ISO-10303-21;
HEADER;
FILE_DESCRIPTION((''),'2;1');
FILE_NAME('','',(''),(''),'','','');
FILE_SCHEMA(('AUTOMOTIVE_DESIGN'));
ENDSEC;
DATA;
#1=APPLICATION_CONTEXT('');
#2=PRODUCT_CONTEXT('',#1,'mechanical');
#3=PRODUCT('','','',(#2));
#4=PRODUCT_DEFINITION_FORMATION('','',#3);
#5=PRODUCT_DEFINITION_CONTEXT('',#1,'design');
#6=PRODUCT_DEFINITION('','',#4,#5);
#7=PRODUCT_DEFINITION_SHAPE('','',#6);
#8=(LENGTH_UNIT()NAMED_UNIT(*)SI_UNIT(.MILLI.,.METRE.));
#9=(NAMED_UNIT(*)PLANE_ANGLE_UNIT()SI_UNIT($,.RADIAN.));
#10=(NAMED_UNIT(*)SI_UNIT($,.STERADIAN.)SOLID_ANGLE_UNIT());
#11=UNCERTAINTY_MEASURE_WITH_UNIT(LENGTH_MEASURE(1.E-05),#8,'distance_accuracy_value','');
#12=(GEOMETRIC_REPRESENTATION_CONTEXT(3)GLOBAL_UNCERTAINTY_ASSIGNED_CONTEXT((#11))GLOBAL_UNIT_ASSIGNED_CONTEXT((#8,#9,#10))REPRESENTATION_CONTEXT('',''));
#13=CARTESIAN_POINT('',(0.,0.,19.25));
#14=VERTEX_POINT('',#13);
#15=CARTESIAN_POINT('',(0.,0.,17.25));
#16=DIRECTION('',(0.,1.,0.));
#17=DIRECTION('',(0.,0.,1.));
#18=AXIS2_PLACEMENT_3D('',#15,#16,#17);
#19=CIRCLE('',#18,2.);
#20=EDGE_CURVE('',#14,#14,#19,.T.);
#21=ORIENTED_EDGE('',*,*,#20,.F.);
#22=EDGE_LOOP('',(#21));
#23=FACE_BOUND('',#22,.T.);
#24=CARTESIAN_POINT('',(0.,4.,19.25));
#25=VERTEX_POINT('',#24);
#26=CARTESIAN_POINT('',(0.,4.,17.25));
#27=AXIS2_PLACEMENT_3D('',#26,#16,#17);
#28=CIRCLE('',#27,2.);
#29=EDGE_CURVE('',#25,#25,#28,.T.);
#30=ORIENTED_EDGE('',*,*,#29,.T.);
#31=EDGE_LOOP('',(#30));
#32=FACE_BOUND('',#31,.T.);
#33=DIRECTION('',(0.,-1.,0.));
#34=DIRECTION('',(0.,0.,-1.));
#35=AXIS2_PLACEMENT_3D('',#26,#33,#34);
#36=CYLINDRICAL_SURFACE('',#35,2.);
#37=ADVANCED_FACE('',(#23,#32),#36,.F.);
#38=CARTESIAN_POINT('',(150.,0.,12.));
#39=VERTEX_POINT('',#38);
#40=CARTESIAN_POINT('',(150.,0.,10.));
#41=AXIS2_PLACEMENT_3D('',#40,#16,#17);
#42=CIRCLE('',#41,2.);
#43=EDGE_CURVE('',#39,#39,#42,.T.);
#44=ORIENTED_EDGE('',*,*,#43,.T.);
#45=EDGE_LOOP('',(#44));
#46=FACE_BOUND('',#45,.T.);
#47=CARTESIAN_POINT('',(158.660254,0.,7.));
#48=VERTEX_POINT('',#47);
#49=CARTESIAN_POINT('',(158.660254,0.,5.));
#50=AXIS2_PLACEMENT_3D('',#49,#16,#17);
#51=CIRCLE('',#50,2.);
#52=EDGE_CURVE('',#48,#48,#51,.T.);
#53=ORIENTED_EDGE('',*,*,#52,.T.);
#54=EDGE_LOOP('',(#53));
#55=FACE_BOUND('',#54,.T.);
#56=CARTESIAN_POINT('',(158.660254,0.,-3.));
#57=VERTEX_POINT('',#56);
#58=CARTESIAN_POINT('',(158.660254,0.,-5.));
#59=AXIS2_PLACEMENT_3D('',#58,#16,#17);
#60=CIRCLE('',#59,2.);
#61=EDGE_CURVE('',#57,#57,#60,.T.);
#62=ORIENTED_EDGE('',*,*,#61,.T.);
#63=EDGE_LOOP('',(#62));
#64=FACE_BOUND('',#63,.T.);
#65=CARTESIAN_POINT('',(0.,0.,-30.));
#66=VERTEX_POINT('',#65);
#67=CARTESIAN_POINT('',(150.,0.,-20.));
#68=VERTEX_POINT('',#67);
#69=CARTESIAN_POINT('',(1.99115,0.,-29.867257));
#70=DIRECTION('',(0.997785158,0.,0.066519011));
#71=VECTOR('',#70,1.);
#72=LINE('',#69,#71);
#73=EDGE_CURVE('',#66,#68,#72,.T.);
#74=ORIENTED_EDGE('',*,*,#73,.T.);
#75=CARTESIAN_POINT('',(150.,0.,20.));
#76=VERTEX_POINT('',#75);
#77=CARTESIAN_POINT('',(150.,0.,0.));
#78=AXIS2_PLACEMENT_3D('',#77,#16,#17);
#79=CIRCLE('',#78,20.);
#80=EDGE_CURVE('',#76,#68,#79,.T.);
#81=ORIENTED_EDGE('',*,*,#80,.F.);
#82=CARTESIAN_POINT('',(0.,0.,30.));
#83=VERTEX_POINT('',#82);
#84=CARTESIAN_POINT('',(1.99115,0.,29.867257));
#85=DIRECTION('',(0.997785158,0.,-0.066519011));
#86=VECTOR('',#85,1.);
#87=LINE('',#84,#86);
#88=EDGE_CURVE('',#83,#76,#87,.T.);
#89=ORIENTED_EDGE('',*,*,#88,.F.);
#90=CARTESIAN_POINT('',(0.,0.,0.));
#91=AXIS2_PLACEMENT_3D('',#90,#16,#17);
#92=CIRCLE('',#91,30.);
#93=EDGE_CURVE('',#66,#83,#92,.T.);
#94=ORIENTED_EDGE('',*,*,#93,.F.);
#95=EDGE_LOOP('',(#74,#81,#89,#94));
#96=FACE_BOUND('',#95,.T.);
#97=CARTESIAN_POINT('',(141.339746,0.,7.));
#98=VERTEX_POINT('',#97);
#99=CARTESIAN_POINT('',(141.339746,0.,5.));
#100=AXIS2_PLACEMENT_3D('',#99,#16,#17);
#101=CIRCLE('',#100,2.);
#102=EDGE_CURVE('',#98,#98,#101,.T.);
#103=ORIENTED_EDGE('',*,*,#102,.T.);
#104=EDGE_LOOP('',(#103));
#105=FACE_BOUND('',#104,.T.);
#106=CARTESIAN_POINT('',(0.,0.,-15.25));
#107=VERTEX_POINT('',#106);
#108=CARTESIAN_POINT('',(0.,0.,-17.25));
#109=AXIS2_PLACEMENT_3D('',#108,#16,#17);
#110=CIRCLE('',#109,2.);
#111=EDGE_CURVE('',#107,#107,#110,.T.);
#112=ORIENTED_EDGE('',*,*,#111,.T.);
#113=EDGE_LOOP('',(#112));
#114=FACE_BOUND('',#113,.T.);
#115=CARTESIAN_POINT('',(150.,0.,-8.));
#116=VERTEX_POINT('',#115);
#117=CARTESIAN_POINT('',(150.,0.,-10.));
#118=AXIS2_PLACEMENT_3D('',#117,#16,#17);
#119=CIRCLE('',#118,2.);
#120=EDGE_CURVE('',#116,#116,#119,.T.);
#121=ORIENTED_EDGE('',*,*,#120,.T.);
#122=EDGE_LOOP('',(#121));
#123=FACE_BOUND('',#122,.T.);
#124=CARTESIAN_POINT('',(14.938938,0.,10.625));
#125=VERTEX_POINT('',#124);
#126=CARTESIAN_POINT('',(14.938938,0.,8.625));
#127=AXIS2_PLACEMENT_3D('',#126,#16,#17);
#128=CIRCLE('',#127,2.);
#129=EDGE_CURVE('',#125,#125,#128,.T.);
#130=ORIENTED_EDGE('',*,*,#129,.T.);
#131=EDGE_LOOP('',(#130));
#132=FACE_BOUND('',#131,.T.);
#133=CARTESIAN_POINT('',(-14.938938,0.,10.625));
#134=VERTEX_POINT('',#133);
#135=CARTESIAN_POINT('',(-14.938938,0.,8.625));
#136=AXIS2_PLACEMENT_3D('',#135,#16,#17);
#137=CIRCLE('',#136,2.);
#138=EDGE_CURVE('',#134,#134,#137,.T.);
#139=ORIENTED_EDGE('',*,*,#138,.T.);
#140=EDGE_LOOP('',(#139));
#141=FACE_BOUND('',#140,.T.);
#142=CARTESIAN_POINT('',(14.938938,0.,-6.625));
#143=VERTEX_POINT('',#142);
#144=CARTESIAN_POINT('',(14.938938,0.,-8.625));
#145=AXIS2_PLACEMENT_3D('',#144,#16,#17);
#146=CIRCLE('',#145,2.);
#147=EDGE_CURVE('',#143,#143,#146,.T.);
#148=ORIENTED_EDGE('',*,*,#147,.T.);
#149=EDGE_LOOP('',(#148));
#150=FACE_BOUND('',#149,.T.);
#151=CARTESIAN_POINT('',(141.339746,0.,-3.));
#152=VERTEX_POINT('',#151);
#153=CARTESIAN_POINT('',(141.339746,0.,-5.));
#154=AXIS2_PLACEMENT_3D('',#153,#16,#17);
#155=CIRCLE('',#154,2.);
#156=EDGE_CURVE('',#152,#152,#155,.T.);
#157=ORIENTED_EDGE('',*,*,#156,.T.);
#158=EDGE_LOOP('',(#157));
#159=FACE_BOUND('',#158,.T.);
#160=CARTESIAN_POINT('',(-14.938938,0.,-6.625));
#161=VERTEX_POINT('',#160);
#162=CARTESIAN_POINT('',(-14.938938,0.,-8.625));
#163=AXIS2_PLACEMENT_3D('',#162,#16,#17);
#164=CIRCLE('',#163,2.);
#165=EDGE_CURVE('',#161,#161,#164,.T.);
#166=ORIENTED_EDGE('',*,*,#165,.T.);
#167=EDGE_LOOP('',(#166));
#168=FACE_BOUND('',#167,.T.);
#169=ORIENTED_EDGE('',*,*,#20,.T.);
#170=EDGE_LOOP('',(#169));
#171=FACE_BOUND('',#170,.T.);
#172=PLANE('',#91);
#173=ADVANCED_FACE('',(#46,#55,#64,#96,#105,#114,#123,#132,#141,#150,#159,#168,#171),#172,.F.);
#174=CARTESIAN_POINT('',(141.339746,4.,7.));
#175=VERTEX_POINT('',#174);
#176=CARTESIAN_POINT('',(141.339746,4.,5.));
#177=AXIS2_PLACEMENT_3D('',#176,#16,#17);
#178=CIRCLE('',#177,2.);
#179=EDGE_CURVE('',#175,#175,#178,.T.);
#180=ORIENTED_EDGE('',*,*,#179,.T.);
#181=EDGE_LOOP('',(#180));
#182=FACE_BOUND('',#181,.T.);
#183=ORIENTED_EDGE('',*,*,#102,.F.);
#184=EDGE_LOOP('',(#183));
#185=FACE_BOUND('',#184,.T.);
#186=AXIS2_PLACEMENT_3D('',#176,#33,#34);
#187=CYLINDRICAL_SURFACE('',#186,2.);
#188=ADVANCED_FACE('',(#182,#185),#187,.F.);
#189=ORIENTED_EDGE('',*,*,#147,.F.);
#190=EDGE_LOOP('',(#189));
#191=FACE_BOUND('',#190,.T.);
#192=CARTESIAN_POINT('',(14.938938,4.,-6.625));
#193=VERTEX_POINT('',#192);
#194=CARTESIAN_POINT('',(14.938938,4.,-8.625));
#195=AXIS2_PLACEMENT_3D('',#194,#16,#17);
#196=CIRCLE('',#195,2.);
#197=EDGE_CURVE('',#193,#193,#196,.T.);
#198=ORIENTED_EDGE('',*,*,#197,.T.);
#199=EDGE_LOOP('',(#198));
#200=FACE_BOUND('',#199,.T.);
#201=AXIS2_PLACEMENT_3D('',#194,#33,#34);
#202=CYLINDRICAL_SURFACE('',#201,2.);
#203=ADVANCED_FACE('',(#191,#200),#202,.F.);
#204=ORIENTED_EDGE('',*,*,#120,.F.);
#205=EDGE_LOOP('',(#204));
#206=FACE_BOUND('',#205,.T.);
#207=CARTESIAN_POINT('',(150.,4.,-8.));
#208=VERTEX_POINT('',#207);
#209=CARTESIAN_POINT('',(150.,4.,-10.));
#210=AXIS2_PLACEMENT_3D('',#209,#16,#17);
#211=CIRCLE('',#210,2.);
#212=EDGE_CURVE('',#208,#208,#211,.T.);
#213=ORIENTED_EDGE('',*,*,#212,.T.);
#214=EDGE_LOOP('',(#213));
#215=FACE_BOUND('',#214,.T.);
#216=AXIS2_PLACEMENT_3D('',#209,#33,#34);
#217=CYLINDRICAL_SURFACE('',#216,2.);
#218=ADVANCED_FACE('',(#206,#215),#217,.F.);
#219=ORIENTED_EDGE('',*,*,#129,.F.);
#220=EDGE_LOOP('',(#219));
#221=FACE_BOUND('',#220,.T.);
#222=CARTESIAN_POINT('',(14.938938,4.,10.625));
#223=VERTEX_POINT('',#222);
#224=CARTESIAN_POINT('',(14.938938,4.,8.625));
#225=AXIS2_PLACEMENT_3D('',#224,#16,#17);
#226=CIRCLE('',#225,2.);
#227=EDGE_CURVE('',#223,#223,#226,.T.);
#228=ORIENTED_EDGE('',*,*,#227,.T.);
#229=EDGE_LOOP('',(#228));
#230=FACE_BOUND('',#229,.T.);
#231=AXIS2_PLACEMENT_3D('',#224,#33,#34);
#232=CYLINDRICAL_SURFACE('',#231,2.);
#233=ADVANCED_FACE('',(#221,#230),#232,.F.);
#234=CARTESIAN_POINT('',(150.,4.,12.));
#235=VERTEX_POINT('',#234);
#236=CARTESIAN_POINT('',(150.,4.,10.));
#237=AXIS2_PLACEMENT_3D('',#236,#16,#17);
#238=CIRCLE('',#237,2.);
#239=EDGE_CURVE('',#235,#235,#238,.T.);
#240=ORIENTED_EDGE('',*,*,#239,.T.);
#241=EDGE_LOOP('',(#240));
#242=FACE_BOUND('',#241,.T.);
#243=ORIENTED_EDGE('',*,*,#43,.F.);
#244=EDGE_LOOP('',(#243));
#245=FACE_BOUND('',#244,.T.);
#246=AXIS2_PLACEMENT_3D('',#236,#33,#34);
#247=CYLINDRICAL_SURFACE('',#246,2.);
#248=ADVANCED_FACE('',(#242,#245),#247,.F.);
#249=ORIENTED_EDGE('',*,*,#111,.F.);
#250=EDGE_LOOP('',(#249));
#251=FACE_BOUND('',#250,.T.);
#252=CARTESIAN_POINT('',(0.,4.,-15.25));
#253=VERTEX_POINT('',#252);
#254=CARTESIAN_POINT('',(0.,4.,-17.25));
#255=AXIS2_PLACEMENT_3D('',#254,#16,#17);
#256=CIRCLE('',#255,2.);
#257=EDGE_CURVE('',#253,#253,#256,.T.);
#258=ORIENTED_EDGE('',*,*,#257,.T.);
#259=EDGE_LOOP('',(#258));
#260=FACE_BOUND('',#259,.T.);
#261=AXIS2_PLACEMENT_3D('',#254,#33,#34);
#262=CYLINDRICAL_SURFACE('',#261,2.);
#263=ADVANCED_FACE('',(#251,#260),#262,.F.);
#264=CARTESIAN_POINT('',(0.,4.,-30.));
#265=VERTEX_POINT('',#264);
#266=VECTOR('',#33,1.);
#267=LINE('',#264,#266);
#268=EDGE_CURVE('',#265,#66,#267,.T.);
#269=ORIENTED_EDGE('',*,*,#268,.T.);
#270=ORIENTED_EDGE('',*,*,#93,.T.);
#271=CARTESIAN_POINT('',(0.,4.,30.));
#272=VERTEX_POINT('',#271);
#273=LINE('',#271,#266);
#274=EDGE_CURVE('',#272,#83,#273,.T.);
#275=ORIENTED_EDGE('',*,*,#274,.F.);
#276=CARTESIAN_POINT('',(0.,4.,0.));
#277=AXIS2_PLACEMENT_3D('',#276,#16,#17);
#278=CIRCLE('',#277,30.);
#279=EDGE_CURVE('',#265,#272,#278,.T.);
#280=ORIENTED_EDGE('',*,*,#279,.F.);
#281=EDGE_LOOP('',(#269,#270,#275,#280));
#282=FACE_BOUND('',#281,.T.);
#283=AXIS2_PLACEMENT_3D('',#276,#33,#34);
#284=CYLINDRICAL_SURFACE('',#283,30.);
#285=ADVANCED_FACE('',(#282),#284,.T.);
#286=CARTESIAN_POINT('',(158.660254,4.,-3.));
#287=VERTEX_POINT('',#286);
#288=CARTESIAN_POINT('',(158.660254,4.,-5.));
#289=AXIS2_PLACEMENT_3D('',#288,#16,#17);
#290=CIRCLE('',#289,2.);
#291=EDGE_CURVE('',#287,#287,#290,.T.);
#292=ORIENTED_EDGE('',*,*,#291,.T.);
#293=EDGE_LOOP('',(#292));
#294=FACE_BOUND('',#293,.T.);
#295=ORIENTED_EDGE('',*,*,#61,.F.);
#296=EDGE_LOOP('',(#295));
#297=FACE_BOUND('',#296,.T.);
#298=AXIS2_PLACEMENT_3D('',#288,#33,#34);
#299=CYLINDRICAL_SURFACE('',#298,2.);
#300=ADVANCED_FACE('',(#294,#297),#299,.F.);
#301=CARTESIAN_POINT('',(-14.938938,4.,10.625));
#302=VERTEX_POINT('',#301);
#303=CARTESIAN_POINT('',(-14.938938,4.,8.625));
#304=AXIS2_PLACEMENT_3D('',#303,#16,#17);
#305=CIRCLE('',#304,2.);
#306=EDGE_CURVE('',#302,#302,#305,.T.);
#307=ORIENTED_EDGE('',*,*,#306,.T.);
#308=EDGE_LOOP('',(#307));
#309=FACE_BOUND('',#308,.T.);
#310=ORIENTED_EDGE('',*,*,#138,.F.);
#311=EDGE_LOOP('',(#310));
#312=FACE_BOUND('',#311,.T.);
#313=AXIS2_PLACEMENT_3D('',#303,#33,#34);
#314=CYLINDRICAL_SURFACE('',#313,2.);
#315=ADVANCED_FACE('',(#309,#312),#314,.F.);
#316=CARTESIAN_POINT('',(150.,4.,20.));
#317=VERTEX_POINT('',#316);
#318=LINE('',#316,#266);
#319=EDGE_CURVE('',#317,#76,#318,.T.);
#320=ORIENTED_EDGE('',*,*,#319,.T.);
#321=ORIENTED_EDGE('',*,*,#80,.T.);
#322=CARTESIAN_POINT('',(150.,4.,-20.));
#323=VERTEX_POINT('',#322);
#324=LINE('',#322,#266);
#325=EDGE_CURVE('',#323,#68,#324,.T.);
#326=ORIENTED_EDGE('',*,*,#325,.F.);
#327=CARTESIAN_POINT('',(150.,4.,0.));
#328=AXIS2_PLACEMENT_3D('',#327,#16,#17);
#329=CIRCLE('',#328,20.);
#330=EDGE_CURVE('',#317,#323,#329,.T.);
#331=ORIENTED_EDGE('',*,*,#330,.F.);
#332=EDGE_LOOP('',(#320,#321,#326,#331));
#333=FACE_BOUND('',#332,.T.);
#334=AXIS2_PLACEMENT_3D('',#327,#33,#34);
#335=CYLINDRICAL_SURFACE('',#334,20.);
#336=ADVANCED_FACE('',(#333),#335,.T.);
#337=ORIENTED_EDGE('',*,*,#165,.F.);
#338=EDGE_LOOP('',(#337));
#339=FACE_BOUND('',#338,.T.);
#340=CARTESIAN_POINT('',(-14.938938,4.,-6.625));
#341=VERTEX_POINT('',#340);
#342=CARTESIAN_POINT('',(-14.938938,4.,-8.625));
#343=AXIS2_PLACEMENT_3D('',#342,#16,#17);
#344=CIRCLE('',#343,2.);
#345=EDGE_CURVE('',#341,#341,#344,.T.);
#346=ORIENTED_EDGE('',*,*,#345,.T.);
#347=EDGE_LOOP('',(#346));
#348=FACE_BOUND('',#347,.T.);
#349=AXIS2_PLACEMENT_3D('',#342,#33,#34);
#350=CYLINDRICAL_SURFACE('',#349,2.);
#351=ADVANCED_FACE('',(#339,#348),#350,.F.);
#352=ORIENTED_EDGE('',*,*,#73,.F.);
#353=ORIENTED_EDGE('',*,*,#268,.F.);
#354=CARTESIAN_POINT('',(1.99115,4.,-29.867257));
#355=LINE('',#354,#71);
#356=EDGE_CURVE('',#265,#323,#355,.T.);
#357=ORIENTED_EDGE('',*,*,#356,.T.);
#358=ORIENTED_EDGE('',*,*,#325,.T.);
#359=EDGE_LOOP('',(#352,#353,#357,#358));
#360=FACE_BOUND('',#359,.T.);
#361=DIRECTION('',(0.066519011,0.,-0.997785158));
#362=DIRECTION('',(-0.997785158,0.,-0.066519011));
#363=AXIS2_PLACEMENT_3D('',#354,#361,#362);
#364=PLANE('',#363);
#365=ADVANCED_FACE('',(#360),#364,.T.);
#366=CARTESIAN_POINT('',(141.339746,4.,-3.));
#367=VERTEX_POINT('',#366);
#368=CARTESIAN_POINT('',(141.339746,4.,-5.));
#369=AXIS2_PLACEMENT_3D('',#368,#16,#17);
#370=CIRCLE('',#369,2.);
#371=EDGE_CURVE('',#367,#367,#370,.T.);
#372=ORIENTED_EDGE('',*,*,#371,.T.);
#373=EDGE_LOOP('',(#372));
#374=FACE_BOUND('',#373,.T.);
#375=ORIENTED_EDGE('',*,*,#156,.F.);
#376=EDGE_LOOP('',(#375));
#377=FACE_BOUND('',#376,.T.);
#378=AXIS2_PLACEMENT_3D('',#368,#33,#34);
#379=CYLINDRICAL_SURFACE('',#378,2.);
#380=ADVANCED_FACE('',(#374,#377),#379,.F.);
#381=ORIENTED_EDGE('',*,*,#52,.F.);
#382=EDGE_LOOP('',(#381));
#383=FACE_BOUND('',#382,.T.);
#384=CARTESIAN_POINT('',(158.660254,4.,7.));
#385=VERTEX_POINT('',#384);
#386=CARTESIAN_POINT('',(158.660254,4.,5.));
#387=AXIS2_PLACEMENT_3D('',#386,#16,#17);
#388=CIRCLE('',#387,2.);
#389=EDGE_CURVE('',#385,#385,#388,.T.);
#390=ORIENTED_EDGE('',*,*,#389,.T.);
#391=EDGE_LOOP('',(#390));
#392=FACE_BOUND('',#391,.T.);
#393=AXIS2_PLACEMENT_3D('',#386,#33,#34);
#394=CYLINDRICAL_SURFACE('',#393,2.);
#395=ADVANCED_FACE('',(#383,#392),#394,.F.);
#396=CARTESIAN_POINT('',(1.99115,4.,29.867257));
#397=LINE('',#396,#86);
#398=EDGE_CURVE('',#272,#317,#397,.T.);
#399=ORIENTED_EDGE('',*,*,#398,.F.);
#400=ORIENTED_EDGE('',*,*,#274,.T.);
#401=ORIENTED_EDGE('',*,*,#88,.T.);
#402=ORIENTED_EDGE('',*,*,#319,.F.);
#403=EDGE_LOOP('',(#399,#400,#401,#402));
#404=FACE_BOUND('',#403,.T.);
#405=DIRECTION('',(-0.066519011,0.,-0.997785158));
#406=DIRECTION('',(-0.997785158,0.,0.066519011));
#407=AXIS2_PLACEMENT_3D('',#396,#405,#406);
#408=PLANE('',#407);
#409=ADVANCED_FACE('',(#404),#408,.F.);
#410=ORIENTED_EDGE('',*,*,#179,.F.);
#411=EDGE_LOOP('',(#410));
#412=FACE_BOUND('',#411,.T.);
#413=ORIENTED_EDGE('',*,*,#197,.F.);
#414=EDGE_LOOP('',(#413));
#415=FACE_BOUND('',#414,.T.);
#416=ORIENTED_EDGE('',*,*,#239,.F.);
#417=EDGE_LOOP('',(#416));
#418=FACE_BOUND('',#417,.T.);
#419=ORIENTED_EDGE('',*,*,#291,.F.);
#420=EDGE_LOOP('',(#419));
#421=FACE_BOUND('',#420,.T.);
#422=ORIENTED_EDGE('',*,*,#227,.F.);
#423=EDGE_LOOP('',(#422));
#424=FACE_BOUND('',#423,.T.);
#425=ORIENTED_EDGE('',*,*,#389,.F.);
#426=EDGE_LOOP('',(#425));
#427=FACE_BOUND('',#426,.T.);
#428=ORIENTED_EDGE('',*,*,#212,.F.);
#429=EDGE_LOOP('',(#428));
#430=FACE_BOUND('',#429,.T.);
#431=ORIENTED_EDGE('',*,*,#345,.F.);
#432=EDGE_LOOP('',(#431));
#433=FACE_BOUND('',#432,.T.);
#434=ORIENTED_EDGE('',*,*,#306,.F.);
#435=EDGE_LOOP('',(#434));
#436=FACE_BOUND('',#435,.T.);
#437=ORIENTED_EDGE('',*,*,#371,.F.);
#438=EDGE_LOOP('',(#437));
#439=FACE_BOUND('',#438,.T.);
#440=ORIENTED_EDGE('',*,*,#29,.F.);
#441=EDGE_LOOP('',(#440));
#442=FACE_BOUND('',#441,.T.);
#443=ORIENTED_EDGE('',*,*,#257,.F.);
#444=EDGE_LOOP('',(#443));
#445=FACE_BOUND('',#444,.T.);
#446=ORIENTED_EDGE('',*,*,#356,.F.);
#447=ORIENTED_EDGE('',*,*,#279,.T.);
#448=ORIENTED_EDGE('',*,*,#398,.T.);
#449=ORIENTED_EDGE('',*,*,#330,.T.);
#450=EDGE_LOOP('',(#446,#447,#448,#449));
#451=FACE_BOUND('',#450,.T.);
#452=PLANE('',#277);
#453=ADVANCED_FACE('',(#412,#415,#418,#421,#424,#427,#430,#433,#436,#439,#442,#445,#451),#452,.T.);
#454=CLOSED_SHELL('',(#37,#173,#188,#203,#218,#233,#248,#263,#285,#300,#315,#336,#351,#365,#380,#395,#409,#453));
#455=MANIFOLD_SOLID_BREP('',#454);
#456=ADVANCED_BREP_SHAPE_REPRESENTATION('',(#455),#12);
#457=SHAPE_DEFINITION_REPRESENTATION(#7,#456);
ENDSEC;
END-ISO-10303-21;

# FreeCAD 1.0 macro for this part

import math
import FreeCAD as App
import Part
import Sketcher
from FreeCAD import Vector
Q = App.Units.Quantity

doc = App.newDocument("Part")
body = doc.addObject("PartDesign::Body", "Body")

sketch1 = body.newObject("Sketcher::SketchObject", "Sketch")
sketch1.AttachmentSupport = (doc.getObject("XZ_Plane"), [""])
sketch1.MapMode = "FlatFace"
sketch1.addGeometry(Part.LineSegment(Vector(0, 30, 0), Vector(150, 20, 0)), False)
sketch1.addGeometry(Part.ArcOfCircle(Part.Circle(Vector(150, 0, 0), Vector(0, 0, 1), 20), math.radians(-90), math.radians(90)), False)
sketch1.addGeometry(Part.LineSegment(Vector(150, -20, 0), Vector(0, -30, 0)), False)
sketch1.addGeometry(Part.ArcOfCircle(Part.Circle(Vector(0, 0, 0), Vector(0, 0, 1), 30), math.radians(90), math.radians(270)), False)
sketch1.addGeometry(Part.Circle(Vector(0, 17.2, 0), Vector(0, 0, 1), 2), False)
sketch1.addGeometry(Part.Circle(Vector(-14.9, 8.6, 0), Vector(0, 0, 1), 2), False)
sketch1.addGeometry(Part.Circle(Vector(14.9, 8.6, 0), Vector(0, 0, 1), 2), False)
sketch1.addGeometry(Part.Circle(Vector(150, 10, 0), Vector(0, 0, 1), 2), False)
sketch1.addGeometry(Part.Circle(Vector(141.3, 5, 0), Vector(0, 0, 1), 2), False)
sketch1.addGeometry(Part.Circle(Vector(158.7, 5, 0), Vector(0, 0, 1), 2), False)
sketch1.addGeometry(Part.Circle(Vector(-14.9, -8.6, 0), Vector(0, 0, 1), 2), False)
sketch1.addGeometry(Part.Circle(Vector(14.9, -8.6, 0), Vector(0, 0, 1), 2), False)
sketch1.addGeometry(Part.Circle(Vector(0, -17.2, 0), Vector(0, 0, 1), 2), False)
sketch1.addGeometry(Part.Circle(Vector(141.3, -5, 0), Vector(0, 0, 1), 2), False)
sketch1.addGeometry(Part.Circle(Vector(158.7, -5, 0), Vector(0, 0, 1), 2), False)
sketch1.addGeometry(Part.Circle(Vector(150, -10, 0), Vector(0, 0, 1), 2), False)
sketch1.addConstraint(Sketcher.Constraint("Coincident", 0, 2, 1, 2))
sketch1.addConstraint(Sketcher.Constraint("Coincident", 1, 1, 2, 1))
sketch1.addConstraint(Sketcher.Constraint("Coincident", 2, 2, 3, 2))
sketch1.addConstraint(Sketcher.Constraint("Coincident", 3, 1, 0, 1))
sketch1.addConstraint(Sketcher.Constraint("Coincident", 3, 3, -1, 1))
sketch1.addConstraint(Sketcher.Constraint("Equal", 4, 5))
sketch1.addConstraint(Sketcher.Constraint("Equal", 5, 6))
sketch1.addConstraint(Sketcher.Constraint("Equal", 6, 7))
sketch1.addConstraint(Sketcher.Constraint("Equal", 7, 8))
sketch1.addConstraint(Sketcher.Constraint("Equal", 8, 9))
sketch1.addConstraint(Sketcher.Constraint("Equal", 9, 10))
sketch1.addConstraint(Sketcher.Constraint("Equal", 10, 11))
sketch1.addConstraint(Sketcher.Constraint("Equal", 11, 12))
sketch1.addConstraint(Sketcher.Constraint("Equal", 12, 13))
sketch1.addConstraint(Sketcher.Constraint("Equal", 13, 14))
sketch1.addConstraint(Sketcher.Constraint("Equal", 14, 15))
sketch1.addConstraint(Sketcher.Constraint("Symmetric", 6, 3, 10, 3, -1, 1))
sketch1.addConstraint(Sketcher.Constraint("Symmetric", 5, 3, 11, 3, -1, 1))
sketch1.addConstraint(Sketcher.Constraint("Symmetric", 4, 3, 12, 3, -1, 1))
sketch1.addConstraint(Sketcher.Constraint("Symmetric", 5, 3, 6, 3, -2))
sketch1.addConstraint(Sketcher.Constraint("Symmetric", 8, 3, 13, 3, -1))
sketch1.addConstraint(Sketcher.Constraint("Symmetric", 9, 3, 14, 3, -1))
sketch1.addConstraint(Sketcher.Constraint("Symmetric", 7, 3, 15, 3, -1))
sketch1.addConstraint(Sketcher.Constraint("Symmetric", 0, 2, 1, 1, -1))
sketch1.addConstraint(Sketcher.Constraint("PointOnObject", 4, 3, -2))
sketch1.addConstraint(Sketcher.Constraint("PointOnObject", 2, 2, -2))
sketch1.addConstraint(Sketcher.Constraint("PointOnObject", 3, 1, -2))
sketch1.addConstraint(Sketcher.Constraint("Horizontal", 8, 3, 9, 3))
sketch1.addConstraint(Sketcher.Constraint("Vertical", 1, 3, 7, 3))
sketch1.addConstraint(Sketcher.Constraint("Vertical", 15, 3, 0, 2))
sketch1.addConstraint(Sketcher.Constraint("Diameter", 4, Q("4 mm")))
sketch1.addConstraint(Sketcher.Constraint("Radius", 1, Q("20 mm")))
sketch1.addConstraint(Sketcher.Constraint("Radius", 3, Q("30 mm")))
sketch1.addConstraint(Sketcher.Constraint("DistanceX", -1, 1, 1, 3, Q("150 mm")))
sketch1.addConstraint(Sketcher.Constraint("DistanceY", -1, 1, 7, 3, Q("10 mm")))
sketch1.addConstraint(Sketcher.Constraint("DistanceY", -1, 1, 8, 3, Q("5 mm")))
sketch1.addConstraint(Sketcher.Constraint("DistanceY", -1, 1, 4, 3, Q("17.25 mm")))
sketch1.addConstraint(Sketcher.Constraint("DistanceY", 10, 3, 5, 3, Q("17.25 mm")))
sketch1.addConstraint(Sketcher.Constraint("DistanceX", 5, 3, -1, 1, Q("14.938938 mm")))
sketch1.addConstraint(Sketcher.Constraint("DistanceX", 8, 3, 9, 3, Q("17.320508 mm")))
sketch1.addConstraint(Sketcher.Constraint("DistanceX", -1, 1, 8, 3, Q("141.339746 mm")))
pad1 = body.newObject("PartDesign::Pad", "Pad")
pad1.Profile = sketch1
pad1.Length = 4
pad1.Reversed = True

doc.recompute()
